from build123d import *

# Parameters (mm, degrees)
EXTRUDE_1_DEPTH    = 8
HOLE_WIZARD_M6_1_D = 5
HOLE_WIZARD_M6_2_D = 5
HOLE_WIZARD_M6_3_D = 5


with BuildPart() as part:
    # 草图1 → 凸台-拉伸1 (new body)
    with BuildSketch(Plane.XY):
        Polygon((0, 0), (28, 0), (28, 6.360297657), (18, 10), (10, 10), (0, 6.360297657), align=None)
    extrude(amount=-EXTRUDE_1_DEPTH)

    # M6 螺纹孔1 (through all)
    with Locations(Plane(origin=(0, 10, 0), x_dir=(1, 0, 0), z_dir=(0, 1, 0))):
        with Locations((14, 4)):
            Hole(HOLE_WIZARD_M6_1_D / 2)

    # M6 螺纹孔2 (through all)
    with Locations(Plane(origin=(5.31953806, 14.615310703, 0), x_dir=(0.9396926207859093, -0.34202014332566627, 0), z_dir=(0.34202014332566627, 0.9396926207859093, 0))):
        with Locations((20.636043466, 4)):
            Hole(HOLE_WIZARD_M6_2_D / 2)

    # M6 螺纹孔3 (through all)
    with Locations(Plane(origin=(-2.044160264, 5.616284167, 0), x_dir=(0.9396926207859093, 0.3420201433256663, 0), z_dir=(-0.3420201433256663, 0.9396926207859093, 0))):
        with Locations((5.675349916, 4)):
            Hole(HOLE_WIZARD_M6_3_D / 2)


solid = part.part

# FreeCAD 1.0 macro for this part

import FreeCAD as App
import Part
import Sketcher
Q = App.Units.Quantity


def add_polygon(sketch, points):
    """Adds a closed chain of lines whose ends are joined by coincident constraints."""
    first, n = sketch.GeometryCount, len(points)
    for a, b in zip(points, points[1:] + points[:1]):
        sketch.addGeometry(Part.LineSegment(App.Vector(*a, 0), App.Vector(*b, 0)), False)
    for i in range(n):
        sketch.addConstraint(Sketcher.Constraint("Coincident", first + i, 2, first + (i + 1) % n, 1))

doc = App.newDocument("Part")
body = doc.addObject("PartDesign::Body", "Body")

sketch1 = body.newObject("Sketcher::SketchObject", "Sketch")
sketch1.AttachmentSupport = (doc.getObject("XY_Plane"), [""])
sketch1.MapMode = "FlatFace"
add_polygon(sketch1, [(0, 0), (28, 0), (28, 6), (18, 10), (10, 10), (0, 6)])
sketch1.addConstraint(Sketcher.Constraint("Horizontal", 0))
sketch1.addConstraint(Sketcher.Constraint("Vertical", 1))
sketch1.addConstraint(Sketcher.Constraint("Horizontal", 3))
sketch1.addConstraint(Sketcher.Constraint("Vertical", 5))
sketch1.addConstraint(Sketcher.Constraint("Coincident", 5, 2, -1, 1))
sketch1.addConstraint(Sketcher.Constraint("Horizontal", 1, 2, 4, 2))
sketch1.addConstraint(Sketcher.Constraint("Equal", 2, 4))
sketch1.addConstraint(Sketcher.Constraint("DistanceX", 0, 1, 0, 2, 28.0))
sketch1.addConstraint(Sketcher.Constraint("DistanceX", 3, 2, 3, 1, 8.0))
sketch1.addConstraint(Sketcher.Constraint("Angle", 2, Q("160 deg")))
sketch1.addConstraint(Sketcher.Constraint("DistanceY", -1, 1, 2, 2, 10.0))
pad1 = body.newObject("PartDesign::Pad", "Pad")
pad1.Profile = sketch1
pad1.Length = 8
pad1.Reversed = True

sketch2 = body.newObject("Sketcher::SketchObject", "Sketch001")
sketch2.AttachmentSupport = (doc.getObject("XZ_Plane"), [""])
sketch2.MapMode = "FlatFace"
sketch2.AttachmentOffset = App.Placement(App.Vector(0, 0, -10), App.Rotation())
sketch2.addGeometry(Part.Circle(App.Vector(14, -4, 0), App.Vector(0, 0, 1), 2.5), False)
sketch2.addConstraint(Sketcher.Constraint("Diameter", 0, 5.0))
sketch2.addConstraint(Sketcher.Constraint("DistanceX", -1, 1, 0, 3, 14.0))
sketch2.addConstraint(Sketcher.Constraint("DistanceY", 0, 3, -1, 1, 4.0))
doc.recompute()
hole = body.newObject("PartDesign::Hole", "Hole")
hole.Profile = sketch2
hole.ThreadType = "None"
hole.Diameter = 5
hole.DepthType = "ThroughAll"
hole.Reversed = True

sketch3 = body.newObject("Sketcher::SketchObject", "Sketch002")
sketch3.Placement = App.Placement(App.Vector(5.319538, 14.615311, 0), App.Rotation(App.Vector(0.939692621, -0.342020143, 0), App.Vector(0, 0, -1), App.Vector(0.342020143, 0.939692621, 0), "ZXY"))
sketch3.addGeometry(Part.Circle(App.Vector(20.6, 4, 0), App.Vector(0, 0, 1), 2.5), False)
sketch3.addConstraint(Sketcher.Constraint("Diameter", 0, 5.0))
sketch3.addConstraint(Sketcher.Constraint("DistanceY", -1, 1, 0, 3, 4.0))
sketch3.addConstraint(Sketcher.Constraint("DistanceX", -1, 1, 0, 3, 20.636043))
doc.recompute()
hole2 = body.newObject("PartDesign::Hole", "Hole001")
hole2.Profile = sketch3
hole2.ThreadType = "None"
hole2.Diameter = 5
hole2.DepthType = "ThroughAll"

sketch4 = body.newObject("Sketcher::SketchObject", "Sketch003")
sketch4.Placement = App.Placement(App.Vector(-2.04416, 5.616284, 0), App.Rotation(App.Vector(0.939692621, 0.342020143, 0), App.Vector(0, 0, -1), App.Vector(-0.342020143, 0.939692621, 0), "ZXY"))
sketch4.addGeometry(Part.Circle(App.Vector(5.7, 4, 0), App.Vector(0, 0, 1), 2.5), False)
sketch4.addConstraint(Sketcher.Constraint("Diameter", 0, 5.0))
sketch4.addConstraint(Sketcher.Constraint("DistanceY", -1, 1, 0, 3, 4.0))
sketch4.addConstraint(Sketcher.Constraint("DistanceX", -1, 1, 0, 3, 5.67535))
doc.recompute()
hole3 = body.newObject("PartDesign::Hole", "Hole002")
hole3.Profile = sketch4
hole3.ThreadType = "None"
hole3.Diameter = 5
hole3.DepthType = "ThroughAll"

doc.recompute()
